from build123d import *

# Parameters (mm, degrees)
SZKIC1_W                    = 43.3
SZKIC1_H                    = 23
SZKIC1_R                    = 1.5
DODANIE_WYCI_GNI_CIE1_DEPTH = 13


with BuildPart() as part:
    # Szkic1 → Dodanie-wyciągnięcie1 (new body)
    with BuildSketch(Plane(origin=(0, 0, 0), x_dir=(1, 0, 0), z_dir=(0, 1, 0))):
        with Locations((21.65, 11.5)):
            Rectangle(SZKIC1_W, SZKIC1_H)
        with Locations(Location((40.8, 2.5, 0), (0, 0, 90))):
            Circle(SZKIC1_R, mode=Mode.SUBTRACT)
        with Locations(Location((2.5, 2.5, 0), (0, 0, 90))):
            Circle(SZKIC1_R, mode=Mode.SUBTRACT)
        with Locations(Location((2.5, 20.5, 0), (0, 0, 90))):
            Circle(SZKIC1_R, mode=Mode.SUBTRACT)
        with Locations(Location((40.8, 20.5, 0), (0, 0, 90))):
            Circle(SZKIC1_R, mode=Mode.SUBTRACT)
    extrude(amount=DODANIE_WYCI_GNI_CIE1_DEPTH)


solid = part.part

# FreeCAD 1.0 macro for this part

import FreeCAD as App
import Part
import Sketcher

V = App.Vector
Q = App.Units.Quantity


def add_polygon(sketch, points):
    """Adds a closed chain of lines whose ends are joined by coincident constraints."""
    first, n = sketch.GeometryCount, len(points)
    for a, b in zip(points, points[1:] + points[:1]):
        sketch.addGeometry(Part.LineSegment(App.Vector(*a, 0), App.Vector(*b, 0)), False)
    for i in range(n):
        sketch.addConstraint(Sketcher.Constraint("Coincident", first + i, 2, first + (i + 1) % n, 1))

doc = App.newDocument("Part")
body = doc.addObject("PartDesign::Body", "Body")

# Sketch on XZ plane
sketch1 = doc.addObject("Sketcher::SketchObject", "Sketch")
body.addObject(sketch1)
sketch1.AttachmentSupport = (doc.XZ_Plane, [""])
sketch1.MapMode = "FlatFace"
add_polygon(sketch1, [(0, -23), (0, 0), (43.3, 0), (43.3, -23)])  # lines 0-3
sketch1.addGeometry(Part.Circle(V(2.5, -2.5, 0), V(0, 0, 1), 1.5), False)  # 4
sketch1.addGeometry(Part.Circle(V(40.8, -2.5, 0), V(0, 0, 1), 1.5), False)  # 5
sketch1.addGeometry(Part.Circle(V(2.5, -20.5, 0), V(0, 0, 1), 1.5), False)  # 6
sketch1.addGeometry(Part.Circle(V(40.8, -20.5, 0), V(0, 0, 1), 1.5), False)  # 7
sketch1.addConstraint(Sketcher.Constraint("Vertical", 0))
sketch1.addConstraint(Sketcher.Constraint("Horizontal", 1))
sketch1.addConstraint(Sketcher.Constraint("Vertical", 2))
sketch1.addConstraint(Sketcher.Constraint("Horizontal", 3))
sketch1.addConstraint(Sketcher.Constraint("Coincident", 0, 2, -1, 1))
sketch1.addConstraint(Sketcher.Constraint("Equal", 4, 5))
sketch1.addConstraint(Sketcher.Constraint("Equal", 5, 6))
sketch1.addConstraint(Sketcher.Constraint("Equal", 6, 7))
sketch1.addConstraint(Sketcher.Constraint("Horizontal", 4, 3, 5, 3))
sketch1.addConstraint(Sketcher.Constraint("Horizontal", 6, 3, 7, 3))
sketch1.addConstraint(Sketcher.Constraint("Vertical", 4, 3, 6, 3))
sketch1.addConstraint(Sketcher.Constraint("Vertical", 5, 3, 7, 3))
sketch1.addConstraint(Sketcher.Constraint("Diameter", 4, Q("3 mm")))
sketch1.addConstraint(Sketcher.Constraint("DistanceY", 0, 1, 0, 2, Q("23 mm")))
sketch1.addConstraint(Sketcher.Constraint("DistanceX", 1, 1, 1, 2, Q("43.3 mm")))
sketch1.addConstraint(Sketcher.Constraint("DistanceY", 6, 3, 4, 3, Q("18 mm")))
sketch1.addConstraint(Sketcher.Constraint("DistanceX", -1, 1, 4, 3, Q("2.5 mm")))
sketch1.addConstraint(Sketcher.Constraint("DistanceY", 4, 3, -1, 1, Q("2.5 mm")))
sketch1.addConstraint(Sketcher.Constraint("DistanceX", -1, 1, 5, 3, Q("40.8 mm")))
pad1 = doc.addObject("PartDesign::Pad", "Pad")
body.addObject(pad1)
pad1.Profile = sketch1
pad1.Length = 13
pad1.Reversed = True

doc.recompute()
